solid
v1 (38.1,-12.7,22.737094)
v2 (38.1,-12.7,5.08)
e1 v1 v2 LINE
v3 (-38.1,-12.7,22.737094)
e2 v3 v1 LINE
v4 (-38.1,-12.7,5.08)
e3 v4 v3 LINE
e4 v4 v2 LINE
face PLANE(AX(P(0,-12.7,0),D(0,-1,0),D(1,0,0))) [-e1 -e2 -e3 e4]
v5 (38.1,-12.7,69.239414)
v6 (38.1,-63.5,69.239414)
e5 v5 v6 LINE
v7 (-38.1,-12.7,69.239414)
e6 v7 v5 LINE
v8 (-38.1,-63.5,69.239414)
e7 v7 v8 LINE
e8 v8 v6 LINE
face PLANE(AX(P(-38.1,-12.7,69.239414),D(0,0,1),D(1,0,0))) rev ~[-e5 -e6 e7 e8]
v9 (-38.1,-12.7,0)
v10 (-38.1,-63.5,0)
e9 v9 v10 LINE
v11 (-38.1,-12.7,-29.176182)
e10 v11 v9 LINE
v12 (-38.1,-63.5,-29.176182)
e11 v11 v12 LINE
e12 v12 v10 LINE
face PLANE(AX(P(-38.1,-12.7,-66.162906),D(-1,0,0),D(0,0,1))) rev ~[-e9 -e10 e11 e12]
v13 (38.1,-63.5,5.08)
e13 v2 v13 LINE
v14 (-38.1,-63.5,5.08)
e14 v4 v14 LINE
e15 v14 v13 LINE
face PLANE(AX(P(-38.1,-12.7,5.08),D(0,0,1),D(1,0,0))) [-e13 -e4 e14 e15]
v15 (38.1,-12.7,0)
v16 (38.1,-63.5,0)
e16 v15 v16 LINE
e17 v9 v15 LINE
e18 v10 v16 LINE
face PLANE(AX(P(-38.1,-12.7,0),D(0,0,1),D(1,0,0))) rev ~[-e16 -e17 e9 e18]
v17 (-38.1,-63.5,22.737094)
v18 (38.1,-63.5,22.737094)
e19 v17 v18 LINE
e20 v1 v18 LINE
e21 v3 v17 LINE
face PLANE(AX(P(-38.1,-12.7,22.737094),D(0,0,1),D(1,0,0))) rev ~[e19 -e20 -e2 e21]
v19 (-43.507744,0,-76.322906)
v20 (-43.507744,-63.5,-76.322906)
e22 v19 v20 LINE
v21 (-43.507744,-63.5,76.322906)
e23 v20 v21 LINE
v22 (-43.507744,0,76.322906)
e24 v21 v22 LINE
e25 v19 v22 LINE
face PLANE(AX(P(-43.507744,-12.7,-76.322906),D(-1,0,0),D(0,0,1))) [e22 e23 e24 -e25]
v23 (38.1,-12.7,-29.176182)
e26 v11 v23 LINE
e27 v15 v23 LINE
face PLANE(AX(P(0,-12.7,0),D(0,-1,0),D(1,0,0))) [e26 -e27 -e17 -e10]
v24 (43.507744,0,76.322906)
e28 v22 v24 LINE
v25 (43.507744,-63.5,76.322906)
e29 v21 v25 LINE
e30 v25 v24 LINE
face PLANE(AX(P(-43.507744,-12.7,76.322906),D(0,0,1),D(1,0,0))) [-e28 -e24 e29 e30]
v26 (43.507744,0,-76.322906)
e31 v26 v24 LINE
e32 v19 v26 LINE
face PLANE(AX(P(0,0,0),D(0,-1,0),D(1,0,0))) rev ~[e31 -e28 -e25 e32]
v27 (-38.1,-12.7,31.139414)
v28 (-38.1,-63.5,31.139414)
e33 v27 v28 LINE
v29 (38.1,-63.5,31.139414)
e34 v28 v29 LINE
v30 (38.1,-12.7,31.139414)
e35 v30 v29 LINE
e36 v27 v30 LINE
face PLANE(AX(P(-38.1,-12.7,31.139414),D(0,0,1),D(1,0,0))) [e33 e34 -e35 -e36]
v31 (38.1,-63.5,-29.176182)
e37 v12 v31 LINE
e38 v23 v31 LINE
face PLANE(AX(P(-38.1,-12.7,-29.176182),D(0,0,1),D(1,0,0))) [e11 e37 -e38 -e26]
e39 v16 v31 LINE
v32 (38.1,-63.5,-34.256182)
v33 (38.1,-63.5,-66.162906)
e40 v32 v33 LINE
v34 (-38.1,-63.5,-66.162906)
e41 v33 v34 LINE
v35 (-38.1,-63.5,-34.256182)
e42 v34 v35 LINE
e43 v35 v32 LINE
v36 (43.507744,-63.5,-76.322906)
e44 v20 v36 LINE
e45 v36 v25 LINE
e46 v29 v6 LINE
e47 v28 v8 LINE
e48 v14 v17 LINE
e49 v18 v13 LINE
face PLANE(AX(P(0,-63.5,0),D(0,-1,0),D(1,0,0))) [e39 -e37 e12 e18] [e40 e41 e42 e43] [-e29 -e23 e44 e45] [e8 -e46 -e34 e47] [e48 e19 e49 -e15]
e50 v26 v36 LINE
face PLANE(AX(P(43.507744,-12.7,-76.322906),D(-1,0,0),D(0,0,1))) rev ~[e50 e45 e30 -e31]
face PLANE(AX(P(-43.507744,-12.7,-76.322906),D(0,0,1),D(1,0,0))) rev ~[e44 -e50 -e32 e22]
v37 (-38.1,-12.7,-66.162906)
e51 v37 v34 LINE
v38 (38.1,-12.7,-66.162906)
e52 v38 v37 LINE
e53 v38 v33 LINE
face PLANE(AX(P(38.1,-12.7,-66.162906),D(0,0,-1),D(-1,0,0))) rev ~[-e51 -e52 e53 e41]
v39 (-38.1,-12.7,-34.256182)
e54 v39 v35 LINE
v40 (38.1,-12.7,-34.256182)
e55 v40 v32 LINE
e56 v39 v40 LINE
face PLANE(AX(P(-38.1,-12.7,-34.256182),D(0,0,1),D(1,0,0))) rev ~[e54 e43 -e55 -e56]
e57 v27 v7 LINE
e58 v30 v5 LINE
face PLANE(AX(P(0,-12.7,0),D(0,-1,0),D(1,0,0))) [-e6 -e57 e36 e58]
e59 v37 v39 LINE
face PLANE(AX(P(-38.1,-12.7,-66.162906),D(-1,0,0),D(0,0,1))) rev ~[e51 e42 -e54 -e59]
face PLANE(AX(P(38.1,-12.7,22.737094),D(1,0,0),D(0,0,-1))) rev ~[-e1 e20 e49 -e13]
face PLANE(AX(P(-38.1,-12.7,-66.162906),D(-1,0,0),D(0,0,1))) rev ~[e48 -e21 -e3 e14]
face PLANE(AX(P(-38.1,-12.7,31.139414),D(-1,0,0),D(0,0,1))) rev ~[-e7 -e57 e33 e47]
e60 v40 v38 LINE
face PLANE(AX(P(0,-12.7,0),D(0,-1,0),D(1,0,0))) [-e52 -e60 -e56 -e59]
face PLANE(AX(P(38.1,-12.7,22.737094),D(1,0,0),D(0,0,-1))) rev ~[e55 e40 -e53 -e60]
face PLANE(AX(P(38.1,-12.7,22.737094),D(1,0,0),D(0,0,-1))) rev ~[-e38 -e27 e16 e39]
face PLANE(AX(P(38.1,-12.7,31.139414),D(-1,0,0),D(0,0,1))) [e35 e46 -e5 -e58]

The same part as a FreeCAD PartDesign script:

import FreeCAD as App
import Part
import Sketcher
from FreeCAD import Vector
Q = App.Units.Quantity

doc = App.newDocument("Part")
body = doc.addObject("PartDesign::Body", "Body")

# Sketch on XZ plane
sketch1 = body.newObject("Sketcher::SketchObject", "Sketch")
sketch1.AttachmentSupport = (doc.getObject("XZ_Plane"), [""])
sketch1.MapMode = "FlatFace"
sketch1.addGeometry([
    Part.LineSegment(Vector(-43.507744, 76.322906, 0), Vector(-43.507744, -76.322906, 0)),
    Part.LineSegment(Vector(-43.507744, -76.322906, 0), Vector(43.507744, -76.322906, 0)),
    Part.LineSegment(Vector(43.507744, -76.322906, 0), Vector(43.507744, 76.322906, 0)),
    Part.LineSegment(Vector(43.507744, 76.322906, 0), Vector(-43.507744, 76.322906, 0)),
], False)
sketch1.addConstraint([
    Sketcher.Constraint("Coincident", 0, 2, 1, 1),
    Sketcher.Constraint("Coincident", 1, 2, 2, 1),
    Sketcher.Constraint("Coincident", 2, 2, 3, 1),
    Sketcher.Constraint("Coincident", 3, 2, 0, 1),
    Sketcher.Constraint("Vertical", 0),
    Sketcher.Constraint("Horizontal", 1),
    Sketcher.Constraint("Vertical", 2),
    Sketcher.Constraint("Horizontal", 3),
    Sketcher.Constraint("Symmetric", 0, 2, 2, 2, -1, 1),
    Sketcher.Constraint("DistanceX", 1, 1, 1, 2, Q("87.015488 mm")),
    Sketcher.Constraint("DistanceY", 0, 2, 0, 1, Q("152.645812 mm")),
])
pad1 = body.newObject("PartDesign::Pad", "Pad")
pad1.Profile = sketch1
pad1.Length = Q("0.5 in")

# Sketch on XZ plane
sketch2 = body.newObject("Sketcher::SketchObject", "Sketch001")
sketch2.AttachmentSupport = (doc.getObject("XZ_Plane"), [""])
sketch2.MapMode = "FlatFace"
sketch2.AttachmentOffset = App.Placement(Vector(0, 0, 0.5 * 25.4), App.Rotation())
sketch2.addGeometry([
    Part.LineSegment(Vector(-43.507744, 76.322906, 0), Vector(-43.507744, -76.322906, 0)),  # 0
    Part.LineSegment(Vector(-43.507744, -76.322906, 0), Vector(43.507744, -76.322906, 0)),  # 1
    Part.LineSegment(Vector(43.507744, -76.322906, 0), Vector(43.507744, 76.322906, 0)),  # 2
    Part.LineSegment(Vector(43.507744, 76.322906, 0), Vector(-43.507744, 76.322906, 0)),  # 3
    Part.LineSegment(Vector(-38.1, -66.162906, 0), Vector(-38.1, 22.737094, 0)),  # 4
    Part.LineSegment(Vector(-38.1, 22.737094, 0), Vector(38.1, 22.737094, 0)),  # 5
    Part.LineSegment(Vector(38.1, 22.737094, 0), Vector(38.1, -66.162906, 0)),  # 6
    Part.LineSegment(Vector(38.1, -66.162906, 0), Vector(-38.1, -66.162906, 0)),  # 7
    Part.LineSegment(Vector(38.1, 31.139414, 0), Vector(-38.1, 31.139414, 0)),  # 8
    Part.LineSegment(Vector(-38.1, 31.139414, 0), Vector(-38.1, 69.239414, 0)),  # 9
    Part.LineSegment(Vector(-38.1, 69.239414, 0), Vector(38.1, 69.239414, 0)),  # 10
    Part.LineSegment(Vector(38.1, 69.239414, 0), Vector(38.1, 31.139414, 0)),  # 11
], False)
sketch2.addConstraint([
    Sketcher.Constraint("Coincident", 0, 2, 1, 1),
    Sketcher.Constraint("Coincident", 1, 2, 2, 1),
    Sketcher.Constraint("Coincident", 2, 2, 3, 1),
    Sketcher.Constraint("Coincident", 3, 2, 0, 1),
    Sketcher.Constraint("Coincident", 4, 2, 5, 1),
    Sketcher.Constraint("Coincident", 5, 2, 6, 1),
    Sketcher.Constraint("Coincident", 6, 2, 7, 1),
    Sketcher.Constraint("Coincident", 7, 2, 4, 1),
    Sketcher.Constraint("Coincident", 8, 2, 9, 1),
    Sketcher.Constraint("Coincident", 9, 2, 10, 1),
    Sketcher.Constraint("Coincident", 10, 2, 11, 1),
    Sketcher.Constraint("Coincident", 11, 2, 8, 1),
    Sketcher.Constraint("Vertical", 0),
    Sketcher.Constraint("Horizontal", 1),
    Sketcher.Constraint("Vertical", 2),
    Sketcher.Constraint("Horizontal", 3),
    Sketcher.Constraint("Vertical", 4),
    Sketcher.Constraint("Horizontal", 5),
    Sketcher.Constraint("Vertical", 6),
    Sketcher.Constraint("Horizontal", 7),
    Sketcher.Constraint("Horizontal", 8),
    Sketcher.Constraint("Vertical", 9),
    Sketcher.Constraint("Horizontal", 10),
    Sketcher.Constraint("Vertical", 11),
    Sketcher.Constraint("Symmetric", 0, 2, 2, 2, -1, 1),
    Sketcher.Constraint("Vertical", 7, 2, 8, 2),
    Sketcher.Constraint("Vertical", 6, 2, 10, 2),
    Sketcher.Constraint("DistanceX", 5, 1, 5, 2, Q("3 in")),
    Sketcher.Constraint("DistanceY", 4, 1, 4, 2, Q("3.5 in")),
    Sketcher.Constraint("DistanceY", 9, 1, 9, 2, Q("1.5 in")),
    Sketcher.Constraint("DistanceX", 4, 2, -1, 1, Q("1.5 in")),
    Sketcher.Constraint("DistanceY", 0, 2, 4, 2, Q("3.9 in")),
    Sketcher.Constraint("DistanceY", 4, 2, 8, 2, Q("0.3308 in")),
    Sketcher.Constraint("DistanceX", 1, 1, 1, 2, Q("87.015488 mm")),
    Sketcher.Constraint("DistanceY", 0, 2, 0, 1, Q("152.645812 mm")),
])
pad2 = body.newObject("PartDesign::Pad", "Pad001")
pad2.Profile = sketch2
pad2.Length = Q("2 in")

# Sketch on XZ plane
sketch3 = body.newObject("Sketcher::SketchObject", "Sketch002")
sketch3.AttachmentSupport = (doc.getObject("XZ_Plane"), [""])
sketch3.MapMode = "FlatFace"
sketch3.AttachmentOffset = App.Placement(Vector(0, 0, 0.5 * 25.4), App.Rotation())
sketch3.addGeometry([
    Part.LineSegment(Vector(-38.1, 5.08, 0), Vector(-38.1, 0, 0)),  # 0
    Part.LineSegment(Vector(-38.1, 0, 0), Vector(38.1, 0, 0)),  # 1
    Part.LineSegment(Vector(38.1, 0, 0), Vector(38.1, 5.08, 0)),  # 2
    Part.LineSegment(Vector(38.1, 5.08, 0), Vector(-38.1, 5.08, 0)),  # 3
    Part.LineSegment(Vector(-38.1, -29.176182, 0), Vector(-38.1, -34.256182, 0)),  # 4
    Part.LineSegment(Vector(-38.1, -34.256182, 0), Vector(38.1, -34.256182, 0)),  # 5
    Part.LineSegment(Vector(38.1, -34.256182, 0), Vector(38.1, -29.176182, 0)),  # 6
    Part.LineSegment(Vector(38.1, -29.176182, 0), Vector(-38.1, -29.176182, 0)),  # 7
], False)
sketch3.addConstraint([
    Sketcher.Constraint("Coincident", 0, 2, 1, 1),
    Sketcher.Constraint("Coincident", 1, 2, 2, 1),
    Sketcher.Constraint("Coincident", 2, 2, 3, 1),
    Sketcher.Constraint("Coincident", 3, 2, 0, 1),
    Sketcher.Constraint("Coincident", 4, 2, 5, 1),
    Sketcher.Constraint("Coincident", 5, 2, 6, 1),
    Sketcher.Constraint("Coincident", 6, 2, 7, 1),
    Sketcher.Constraint("Coincident", 7, 2, 4, 1),
    Sketcher.Constraint("Vertical", 0),
    Sketcher.Constraint("Horizontal", 1),
    Sketcher.Constraint("Vertical", 2),
    Sketcher.Constraint("Horizontal", 3),
    Sketcher.Constraint("Vertical", 4),
    Sketcher.Constraint("Horizontal", 5),
    Sketcher.Constraint("Vertical", 6),
    Sketcher.Constraint("Horizontal", 7),
    Sketcher.Constraint("Symmetric", 0, 2, 1, 2, -1, 1),
    Sketcher.Constraint("Vertical", 3, 2, 4, 2),
    Sketcher.Constraint("Vertical", 2, 2, 5, 2),
    Sketcher.Constraint("Equal", 2, 4),
    Sketcher.Constraint("DistanceX", 1, 1, 1, 2, Q("3 in")),
    Sketcher.Constraint("DistanceY", 0, 2, 0, 1, Q("0.2 in")),
    Sketcher.Constraint("DistanceY", 4, 2, -1, 1, Q("34.256182 mm")),
])
pad3 = body.newObject("PartDesign::Pad", "Pad002")
pad3.Profile = sketch3
pad3.Length = Q("2 in")

doc.recompute()
